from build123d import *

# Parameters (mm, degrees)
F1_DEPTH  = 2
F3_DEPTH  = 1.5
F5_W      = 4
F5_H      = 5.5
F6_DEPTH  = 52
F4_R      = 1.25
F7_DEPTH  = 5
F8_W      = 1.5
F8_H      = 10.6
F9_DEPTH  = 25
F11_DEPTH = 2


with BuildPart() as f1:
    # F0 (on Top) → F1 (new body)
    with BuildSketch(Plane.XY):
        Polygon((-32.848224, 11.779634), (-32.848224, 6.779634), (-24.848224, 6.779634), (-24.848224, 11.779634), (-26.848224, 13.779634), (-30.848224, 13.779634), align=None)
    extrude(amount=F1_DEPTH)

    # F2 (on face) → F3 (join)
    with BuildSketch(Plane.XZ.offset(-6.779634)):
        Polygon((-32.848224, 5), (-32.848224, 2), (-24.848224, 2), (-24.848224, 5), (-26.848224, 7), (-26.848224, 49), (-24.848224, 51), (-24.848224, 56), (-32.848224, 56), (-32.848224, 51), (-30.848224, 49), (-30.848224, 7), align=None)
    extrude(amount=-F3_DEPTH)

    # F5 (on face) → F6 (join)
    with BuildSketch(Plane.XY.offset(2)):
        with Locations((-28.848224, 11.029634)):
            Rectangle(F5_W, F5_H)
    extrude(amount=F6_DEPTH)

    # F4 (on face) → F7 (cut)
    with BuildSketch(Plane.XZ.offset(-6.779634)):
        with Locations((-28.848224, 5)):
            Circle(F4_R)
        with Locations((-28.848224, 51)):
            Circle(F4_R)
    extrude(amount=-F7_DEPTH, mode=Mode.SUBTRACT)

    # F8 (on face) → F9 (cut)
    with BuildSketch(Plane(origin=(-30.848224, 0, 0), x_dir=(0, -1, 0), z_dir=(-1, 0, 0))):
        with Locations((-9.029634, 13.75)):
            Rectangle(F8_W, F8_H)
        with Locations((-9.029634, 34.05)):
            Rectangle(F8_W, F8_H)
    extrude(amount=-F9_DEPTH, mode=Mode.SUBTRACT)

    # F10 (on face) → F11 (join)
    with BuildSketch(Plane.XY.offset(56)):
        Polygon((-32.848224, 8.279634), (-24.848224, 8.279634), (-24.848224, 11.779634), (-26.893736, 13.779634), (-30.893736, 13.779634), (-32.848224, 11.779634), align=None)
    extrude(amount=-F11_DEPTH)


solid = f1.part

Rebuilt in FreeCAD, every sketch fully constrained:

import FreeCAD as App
import Part
import Sketcher


def add_polygon(sketch, points):
    """Adds a closed chain of lines whose ends are joined by coincident constraints."""
    first, n = sketch.GeometryCount, len(points)
    for a, b in zip(points, points[1:] + points[:1]):
        sketch.addGeometry(Part.LineSegment(App.Vector(*a, 0), App.Vector(*b, 0)), False)
    for i in range(n):
        sketch.addConstraint(Sketcher.Constraint("Coincident", first + i, 2, first + (i + 1) % n, 1))

doc = App.newDocument("Part")
body = doc.addObject("PartDesign::Body", "Body")

# Sketch on XY plane
sketch1 = body.newObject("Sketcher::SketchObject", "Sketch")
sketch1.AttachmentSupport = (doc.getObject("XY_Plane"), [""])
sketch1.MapMode = "FlatFace"
add_polygon(sketch1, [(-32.8, 11.8), (-32.8, 6.8), (-24.8, 6.8), (-24.8, 11.8), (-26.8, 13.8), (-30.8, 13.8)])  # lines 0-5
sketch1.addConstraint(Sketcher.Constraint("Vertical", 0))
sketch1.addConstraint(Sketcher.Constraint("Horizontal", 1))
sketch1.addConstraint(Sketcher.Constraint("Vertical", 2))
sketch1.addConstraint(Sketcher.Constraint("Horizontal", 4))
sketch1.addConstraint(Sketcher.Constraint("Perpendicular", 3, 5))
sketch1.addConstraint(Sketcher.Constraint("Horizontal", 2, 2, 5, 2))
sketch1.addConstraint(Sketcher.Constraint("Equal", 3, 5))
sketch1.addConstraint(Sketcher.Constraint("DistanceX", 1, 1, 1, 2, 8.0))
sketch1.addConstraint(Sketcher.Constraint("DistanceX", 4, 2, 4, 1, 4.0))
sketch1.addConstraint(Sketcher.Constraint("DistanceY", 0, 2, 0, 1, 5.0))
sketch1.addConstraint(Sketcher.Constraint("DistanceX", 0, 2, -1, 1, 32.848224))
sketch1.addConstraint(Sketcher.Constraint("DistanceY", -1, 1, 0, 2, 6.779634))
pad1 = body.newObject("PartDesign::Pad", "Pad")
pad1.Profile = sketch1
pad1.Length = 2

# Sketch on XZ plane
sketch2 = body.newObject("Sketcher::SketchObject", "Sketch001")
sketch2.AttachmentSupport = (doc.getObject("XZ_Plane"), [""])
sketch2.MapMode = "FlatFace"
sketch2.AttachmentOffset = App.Placement(App.Vector(0, 0, -6.779634), App.Rotation())
add_polygon(sketch2, [(-32.8, 5), (-32.8, 2), (-24.8, 2), (-24.8, 5), (-26.8, 7), (-26.8, 49), (-24.8, 51), (-24.8, 56), (-32.8, 56), (-32.8, 51), (-30.8, 49), (-30.8, 7)])  # lines 0-11
sketch2.addConstraint(Sketcher.Constraint("Vertical", 0))
sketch2.addConstraint(Sketcher.Constraint("Horizontal", 1))
sketch2.addConstraint(Sketcher.Constraint("Vertical", 2))
sketch2.addConstraint(Sketcher.Constraint("Vertical", 4))
sketch2.addConstraint(Sketcher.Constraint("Vertical", 6))
sketch2.addConstraint(Sketcher.Constraint("Horizontal", 7))
sketch2.addConstraint(Sketcher.Constraint("Vertical", 8))
sketch2.addConstraint(Sketcher.Constraint("Vertical", 10))
sketch2.addConstraint(Sketcher.Constraint("Perpendicular", 3, 5))
sketch2.addConstraint(Sketcher.Constraint("Perpendicular", 5, 9))
sketch2.addConstraint(Sketcher.Constraint("Perpendicular", 9, 11))
sketch2.addConstraint(Sketcher.Constraint("Horizontal", 5, 2, 8, 2))
sketch2.addConstraint(Sketcher.Constraint("Horizontal", 4, 2, 9, 2))
sketch2.addConstraint(Sketcher.Constraint("Horizontal", 3, 2, 10, 2))
sketch2.addConstraint(Sketcher.Constraint("Horizontal", 2, 2, 11, 2))
sketch2.addConstraint(Sketcher.Constraint("Vertical", 2, 2, 5, 2))
sketch2.addConstraint(Sketcher.Constraint("Vertical", 0, 2, 7, 2))
sketch2.addConstraint(Sketcher.Constraint("DistanceX", 1, 1, 1, 2, 8.0))
sketch2.addConstraint(Sketcher.Constraint("DistanceY", 0, 2, 0, 1, 3.0))
sketch2.addConstraint(Sketcher.Constraint("DistanceY", 4, 1, 4, 2, 42.0))
sketch2.addConstraint(Sketcher.Constraint("DistanceY", 6, 1, 6, 2, 5.0))
sketch2.addConstraint(Sketcher.Constraint("DistanceY", -1, 1, 0, 2, 2.0))
sketch2.addConstraint(Sketcher.Constraint("DistanceY", -1, 1, 3, 2, 7.0))
sketch2.addConstraint(Sketcher.Constraint("DistanceX", 0, 2, -1, 1, 32.848224))
pad2 = body.newObject("PartDesign::Pad", "Pad001")
pad2.Profile = sketch2
pad2.Length = 1.5
pad2.Reversed = True

# Sketch on XY plane
sketch3 = body.newObject("Sketcher::SketchObject", "Sketch002")
sketch3.AttachmentSupport = (doc.getObject("XY_Plane"), [""])
sketch3.MapMode = "FlatFace"
sketch3.AttachmentOffset = App.Placement(App.Vector(0, 0, 2), App.Rotation())
add_polygon(sketch3, [(-30.8, 13.8), (-30.8, 8.3), (-26.8, 8.3), (-26.8, 13.8)])  # lines 0-3
sketch3.addConstraint(Sketcher.Constraint("Vertical", 0))
sketch3.addConstraint(Sketcher.Constraint("Horizontal", 1))
sketch3.addConstraint(Sketcher.Constraint("Vertical", 2))
sketch3.addConstraint(Sketcher.Constraint("Horizontal", 3))
sketch3.addConstraint(Sketcher.Constraint("DistanceX", 1, 1, 1, 2, 4.0))
sketch3.addConstraint(Sketcher.Constraint("DistanceY", 0, 2, 0, 1, 5.5))
sketch3.addConstraint(Sketcher.Constraint("DistanceX", 0, 2, -1, 1, 30.848224))
sketch3.addConstraint(Sketcher.Constraint("DistanceY", -1, 1, 0, 2, 8.279634))
pad3 = body.newObject("PartDesign::Pad", "Pad002")
pad3.Profile = sketch3
pad3.Length = 52

# Sketch on XZ plane
sketch4 = body.newObject("Sketcher::SketchObject", "Sketch003")
sketch4.AttachmentSupport = (doc.getObject("XZ_Plane"), [""])
sketch4.MapMode = "FlatFace"
sketch4.AttachmentOffset = App.Placement(App.Vector(0, 0, -6.779634), App.Rotation())
sketch4.addGeometry(Part.Circle(App.Vector(-28.8, 5, 0), App.Vector(0, 0, 1), 1.2), False)
sketch4.addGeometry(Part.Circle(App.Vector(-28.8, 51, 0), App.Vector(0, 0, 1), 1.2), False)
sketch4.addConstraint(Sketcher.Constraint("Equal", 0, 1))
sketch4.addConstraint(Sketcher.Constraint("Vertical", 0, 3, 1, 3))
sketch4.addConstraint(Sketcher.Constraint("Diameter", 0, 2.5))
sketch4.addConstraint(Sketcher.Constraint("DistanceY", -1, 1, 0, 3, 5.0))
sketch4.addConstraint(Sketcher.Constraint("DistanceY", -1, 1, 1, 3, 51.0))
sketch4.addConstraint(Sketcher.Constraint("DistanceX", 0, 3, -1, 1, 28.848224))
pocket1 = body.newObject("PartDesign::Pocket", "Pocket")
pocket1.Profile = sketch4
pocket1.Length = 5

# Sketch on YZ plane
sketch5 = body.newObject("Sketcher::SketchObject", "Sketch004")
sketch5.AttachmentSupport = (doc.getObject("YZ_Plane"), [""])
sketch5.MapMode = "FlatFace"
sketch5.AttachmentOffset = App.Placement(App.Vector(0, 0, -30.848224), App.Rotation())
add_polygon(sketch5, [(9.8, 19.1), (9.8, 8.4), (8.3, 8.4), (8.3, 19.1)])  # lines 0-3
add_polygon(sketch5, [(9.8, 39.4), (9.8, 28.8), (8.3, 28.8), (8.3, 39.4)])  # lines 4-7
sketch5.addConstraint(Sketcher.Constraint("Vertical", 0))
sketch5.addConstraint(Sketcher.Constraint("Horizontal", 1))
sketch5.addConstraint(Sketcher.Constraint("Vertical", 2))
sketch5.addConstraint(Sketcher.Constraint("Horizontal", 3))
sketch5.addConstraint(Sketcher.Constraint("Vertical", 4))
sketch5.addConstraint(Sketcher.Constraint("Horizontal", 5))
sketch5.addConstraint(Sketcher.Constraint("Vertical", 6))
sketch5.addConstraint(Sketcher.Constraint("Horizontal", 7))
sketch5.addConstraint(Sketcher.Constraint("Vertical", 3, 2, 4, 2))
sketch5.addConstraint(Sketcher.Constraint("Vertical", 2, 2, 5, 2))
sketch5.addConstraint(Sketcher.Constraint("Equal", 2, 4))
sketch5.addConstraint(Sketcher.Constraint("DistanceX", 1, 2, 1, 1, 1.5))
sketch5.addConstraint(Sketcher.Constraint("DistanceY", 0, 2, 0, 1, 10.6))
sketch5.addConstraint(Sketcher.Constraint("DistanceY", 3, 2, 4, 2, 9.7))
sketch5.addConstraint(Sketcher.Constraint("DistanceY", -1, 1, 0, 2, 8.45))
sketch5.addConstraint(Sketcher.Constraint("DistanceX", -1, 1, 0, 2, 9.779634))
pocket2 = body.newObject("PartDesign::Pocket", "Pocket001")
pocket2.Profile = sketch5
pocket2.Length = 25
pocket2.Reversed = True

# Sketch on XY plane
sketch6 = body.newObject("Sketcher::SketchObject", "Sketch005")
sketch6.AttachmentSupport = (doc.getObject("XY_Plane"), [""])
sketch6.MapMode = "FlatFace"
sketch6.AttachmentOffset = App.Placement(App.Vector(0, 0, 56), App.Rotation())
add_polygon(sketch6, [(-32.8, 8.3), (-24.8, 8.3), (-24.8, 11.8), (-26.9, 13.8), (-30.9, 13.8), (-32.8, 11.8)])  # lines 0-5
sketch6.addConstraint(Sketcher.Constraint("Horizontal", 0))
sketch6.addConstraint(Sketcher.Constraint("Vertical", 1))
sketch6.addConstraint(Sketcher.Constraint("Horizontal", 3))
sketch6.addConstraint(Sketcher.Constraint("Vertical", 5))
sketch6.addConstraint(Sketcher.Constraint("Horizontal", 1, 2, 4, 2))
sketch6.addConstraint(Sketcher.Constraint("DistanceX", 0, 1, 0, 2, 8.0))
sketch6.addConstraint(Sketcher.Constraint("DistanceX", 3, 2, 3, 1, 4.0))
sketch6.addConstraint(Sketcher.Constraint("DistanceY", 1, 1, 1, 2, 3.5))
sketch6.addConstraint(Sketcher.Constraint("DistanceY", 1, 2, 2, 2, 2.0))
sketch6.addConstraint(Sketcher.Constraint("Distance", 2, 2.86079))
sketch6.addConstraint(Sketcher.Constraint("DistanceX", 0, 2, -1, 1, 24.848224))
sketch6.addConstraint(Sketcher.Constraint("DistanceY", -1, 1, 0, 2, 8.279634))
pad4 = body.newObject("PartDesign::Pad", "Pad003")
pad4.Profile = sketch6
pad4.Length = 2
pad4.Reversed = True

doc.recompute()
